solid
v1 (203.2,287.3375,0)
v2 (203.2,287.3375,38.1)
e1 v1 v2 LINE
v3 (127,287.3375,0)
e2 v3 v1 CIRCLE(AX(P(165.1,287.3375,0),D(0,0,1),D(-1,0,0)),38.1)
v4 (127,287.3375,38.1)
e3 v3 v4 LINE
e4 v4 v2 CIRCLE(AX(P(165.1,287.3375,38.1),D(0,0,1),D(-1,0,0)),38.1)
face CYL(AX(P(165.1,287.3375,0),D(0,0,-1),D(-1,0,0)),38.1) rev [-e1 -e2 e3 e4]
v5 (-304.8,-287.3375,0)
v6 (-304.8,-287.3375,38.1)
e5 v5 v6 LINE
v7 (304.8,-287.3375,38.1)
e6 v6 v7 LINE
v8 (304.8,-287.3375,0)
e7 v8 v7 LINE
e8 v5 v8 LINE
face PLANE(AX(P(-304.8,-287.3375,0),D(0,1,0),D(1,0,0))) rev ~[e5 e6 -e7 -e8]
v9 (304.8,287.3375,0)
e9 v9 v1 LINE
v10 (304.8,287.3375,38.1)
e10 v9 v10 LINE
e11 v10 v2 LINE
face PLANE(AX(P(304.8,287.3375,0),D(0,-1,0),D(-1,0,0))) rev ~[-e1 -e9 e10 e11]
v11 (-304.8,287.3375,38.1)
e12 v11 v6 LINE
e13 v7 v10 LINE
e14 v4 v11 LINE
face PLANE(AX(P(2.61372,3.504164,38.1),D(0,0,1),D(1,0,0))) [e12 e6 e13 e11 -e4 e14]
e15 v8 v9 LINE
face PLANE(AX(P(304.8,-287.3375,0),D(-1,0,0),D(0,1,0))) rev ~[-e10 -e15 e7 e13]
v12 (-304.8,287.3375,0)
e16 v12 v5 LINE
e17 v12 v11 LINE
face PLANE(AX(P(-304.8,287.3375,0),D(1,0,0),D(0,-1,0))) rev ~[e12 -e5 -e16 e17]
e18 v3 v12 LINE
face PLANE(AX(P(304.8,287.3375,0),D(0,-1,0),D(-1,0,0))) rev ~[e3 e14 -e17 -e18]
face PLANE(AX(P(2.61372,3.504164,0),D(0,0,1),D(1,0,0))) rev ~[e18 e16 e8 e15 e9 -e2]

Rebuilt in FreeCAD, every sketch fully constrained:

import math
import FreeCAD as App
import Part
import Sketcher

V = App.Vector
Q = App.Units.Quantity

doc = App.newDocument("Part")
params = doc.addObject("Spreadsheet::Sheet", "Params")
for row, (alias, value) in enumerate([
    ("sketch1_width", "24 in"),
    ("sketch1_height", "22.625 in"),
    ("pad1_length", "1.5 in"),
    ("sketch2_radius", "1.5 in"),
    ("pocket1_length", "1.5 in"),
], start=1):
    params.set(f"A{row}", alias)
    params.set(f"B{row}", "=" + value)
    params.setAlias(f"B{row}", alias)

body = doc.addObject("PartDesign::Body", "Body")

# Sketch on XY plane
sketch1 = body.newObject("Sketcher::SketchObject", "Sketch")
sketch1.AttachmentSupport = (doc.getObject("XY_Plane"), [""])
sketch1.MapMode = "FlatFace"
sketch1.addGeometry(Part.LineSegment(V(305, -287, 0), V(305, 287, 0)), False)
sketch1.addGeometry(Part.LineSegment(V(305, 287, 0), V(-305, 287, 0)), False)
sketch1.addGeometry(Part.LineSegment(V(-305, 287, 0), V(-305, -287, 0)), False)
sketch1.addGeometry(Part.LineSegment(V(-305, -287, 0), V(305, -287, 0)), False)
sketch1.addConstraint(Sketcher.Constraint("Coincident", 0, 2, 1, 1))
sketch1.addConstraint(Sketcher.Constraint("Coincident", 1, 2, 2, 1))
sketch1.addConstraint(Sketcher.Constraint("Coincident", 2, 2, 3, 1))
sketch1.addConstraint(Sketcher.Constraint("Coincident", 3, 2, 0, 1))
sketch1.addConstraint(Sketcher.Constraint("Vertical", 0))
sketch1.addConstraint(Sketcher.Constraint("Horizontal", 1))
sketch1.addConstraint(Sketcher.Constraint("Vertical", 2))
sketch1.addConstraint(Sketcher.Constraint("Horizontal", 3))
sketch1.addConstraint(Sketcher.Constraint("Symmetric", 0, 2, 2, 2, -1, 1))
sketch1.addConstraint(Sketcher.Constraint("DistanceX", 1, 2, 1, 1, Q("24 in")))
sketch1.addConstraint(Sketcher.Constraint("DistanceY", 0, 1, 0, 2, Q("22.625 in")))
sketch1.setExpression("Constraints[9]", "Params.sketch1_width")
sketch1.setExpression("Constraints[10]", "Params.sketch1_height")
pad1 = body.newObject("PartDesign::Pad", "Pad")
pad1.Profile = sketch1
pad1.setExpression("Length", "Params.pad1_length")

# Sketch on XY plane
sketch2 = body.newObject("Sketcher::SketchObject", "Sketch001")
sketch2.AttachmentSupport = (doc.getObject("XY_Plane"), [""])
sketch2.MapMode = "FlatFace"
sketch2.addGeometry(Part.ArcOfCircle(Part.Circle(V(165, 287, 0), V(0, 0, 1), 38), math.radians(180), math.radians(360)), False)
sketch2.addGeometry(Part.LineSegment(V(203, 287, 0), V(127, 287, 0)), False)
sketch2.addConstraint(Sketcher.Constraint("Coincident", 0, 1, 1, 2))
sketch2.addConstraint(Sketcher.Constraint("Coincident", 1, 1, 0, 2))
sketch2.addConstraint(Sketcher.Constraint("Horizontal", 1))
sketch2.addConstraint(Sketcher.Constraint("Radius", 0, Q("1.5 in")))
sketch2.addConstraint(Sketcher.Constraint("DistanceX", -1, 1, 0, 1, Q("5 in")))
sketch2.addConstraint(Sketcher.Constraint("DistanceY", -1, 1, 0, 3, Q("11.3125 in")))
sketch2.addConstraint(Sketcher.Constraint("DistanceY", -1, 1, 0, 1, Q("11.3125 in")))
sketch2.setExpression("Constraints[3]", "Params.sketch2_radius")
pocket1 = body.newObject("PartDesign::Pocket", "Pocket")
pocket1.Profile = sketch2
pocket1.setExpression("Length", "Params.pocket1_length")
pocket1.Reversed = True

doc.recompute()
